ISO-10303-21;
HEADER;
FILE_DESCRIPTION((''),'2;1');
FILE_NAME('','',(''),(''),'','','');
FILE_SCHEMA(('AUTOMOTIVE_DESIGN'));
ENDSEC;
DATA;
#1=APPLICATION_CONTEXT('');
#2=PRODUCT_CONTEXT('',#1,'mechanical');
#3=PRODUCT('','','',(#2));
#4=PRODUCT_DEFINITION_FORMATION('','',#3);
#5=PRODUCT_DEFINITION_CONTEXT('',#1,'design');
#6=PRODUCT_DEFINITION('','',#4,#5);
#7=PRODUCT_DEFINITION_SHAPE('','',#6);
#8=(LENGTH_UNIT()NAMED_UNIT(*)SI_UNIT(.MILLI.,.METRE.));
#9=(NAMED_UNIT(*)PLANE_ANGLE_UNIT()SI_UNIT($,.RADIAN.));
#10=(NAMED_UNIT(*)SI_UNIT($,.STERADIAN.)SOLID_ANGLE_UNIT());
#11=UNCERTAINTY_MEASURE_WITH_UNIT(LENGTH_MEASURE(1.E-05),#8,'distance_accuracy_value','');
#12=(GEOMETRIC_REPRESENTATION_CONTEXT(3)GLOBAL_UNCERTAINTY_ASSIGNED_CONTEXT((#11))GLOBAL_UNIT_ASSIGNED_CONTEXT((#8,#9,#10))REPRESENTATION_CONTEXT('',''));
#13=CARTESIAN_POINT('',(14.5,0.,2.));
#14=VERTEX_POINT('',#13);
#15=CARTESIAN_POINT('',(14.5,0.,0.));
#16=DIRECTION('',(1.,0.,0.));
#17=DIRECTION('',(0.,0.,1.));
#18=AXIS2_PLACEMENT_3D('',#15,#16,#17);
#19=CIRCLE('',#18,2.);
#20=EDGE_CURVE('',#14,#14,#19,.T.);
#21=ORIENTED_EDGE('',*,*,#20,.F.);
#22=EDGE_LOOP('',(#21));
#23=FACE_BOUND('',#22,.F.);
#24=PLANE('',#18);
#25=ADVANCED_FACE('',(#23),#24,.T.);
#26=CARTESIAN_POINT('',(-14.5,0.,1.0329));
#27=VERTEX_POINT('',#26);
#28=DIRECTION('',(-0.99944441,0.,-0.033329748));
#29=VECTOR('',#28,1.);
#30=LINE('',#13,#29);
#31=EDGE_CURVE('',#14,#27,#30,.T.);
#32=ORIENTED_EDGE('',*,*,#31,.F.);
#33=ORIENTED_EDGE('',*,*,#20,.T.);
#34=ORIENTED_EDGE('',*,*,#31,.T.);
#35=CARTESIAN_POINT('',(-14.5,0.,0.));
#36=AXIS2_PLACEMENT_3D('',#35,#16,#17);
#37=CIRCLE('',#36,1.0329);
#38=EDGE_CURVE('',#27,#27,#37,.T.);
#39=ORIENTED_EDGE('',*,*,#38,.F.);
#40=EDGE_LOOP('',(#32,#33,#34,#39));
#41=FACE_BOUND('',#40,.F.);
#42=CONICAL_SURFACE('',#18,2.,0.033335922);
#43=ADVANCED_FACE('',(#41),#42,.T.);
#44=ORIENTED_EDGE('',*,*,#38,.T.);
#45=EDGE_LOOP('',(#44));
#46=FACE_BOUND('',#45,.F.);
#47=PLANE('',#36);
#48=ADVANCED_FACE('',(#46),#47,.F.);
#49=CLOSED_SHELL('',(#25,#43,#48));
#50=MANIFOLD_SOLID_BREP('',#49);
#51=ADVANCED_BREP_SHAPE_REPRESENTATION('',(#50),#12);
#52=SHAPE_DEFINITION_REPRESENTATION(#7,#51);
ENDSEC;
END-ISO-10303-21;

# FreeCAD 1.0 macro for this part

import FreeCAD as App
import Part
import Sketcher
Q = App.Units.Quantity


def add_polygon(sketch, points):
    """Adds a closed chain of lines whose ends are joined by coincident constraints."""
    first, n = sketch.GeometryCount, len(points)
    for a, b in zip(points, points[1:] + points[:1]):
        sketch.addGeometry(Part.LineSegment(App.Vector(*a, 0), App.Vector(*b, 0)), False)
    for i in range(n):
        sketch.addConstraint(Sketcher.Constraint("Coincident", first + i, 2, first + (i + 1) % n, 1))

doc = App.newDocument("Part")
body = doc.addObject("PartDesign::Body", "Body")

sketch1 = doc.addObject("Sketcher::SketchObject", "Sketch")
body.addObject(sketch1)
sketch1.AttachmentSupport = (doc.XZ_Plane, [""])
sketch1.MapMode = "FlatFace"
add_polygon(sketch1, [(14.5, 0), (14.5, 2), (-14.5, 1), (-14.5, 0)])
sketch1.addConstraint([
    Sketcher.Constraint("Vertical", 0),
    Sketcher.Constraint("Vertical", 2),
    Sketcher.Constraint("Horizontal", 3),
    Sketcher.Constraint("Symmetric", 2, 2, 3, 2, -1, 1),
    Sketcher.Constraint("DistanceX", 3, 1, 3, 2, 29.0),
    Sketcher.Constraint("DistanceY", 0, 1, 0, 2, 2.0),
    Sketcher.Constraint("Angle", 1, Q("-178.09 deg")),
])
revolution = doc.addObject("PartDesign::Revolution", "Revolution")
body.addObject(revolution)
revolution.Profile = sketch1
revolution.ReferenceAxis = (sketch1, ["H_Axis"])
revolution.Angle = 360

doc.recompute()
